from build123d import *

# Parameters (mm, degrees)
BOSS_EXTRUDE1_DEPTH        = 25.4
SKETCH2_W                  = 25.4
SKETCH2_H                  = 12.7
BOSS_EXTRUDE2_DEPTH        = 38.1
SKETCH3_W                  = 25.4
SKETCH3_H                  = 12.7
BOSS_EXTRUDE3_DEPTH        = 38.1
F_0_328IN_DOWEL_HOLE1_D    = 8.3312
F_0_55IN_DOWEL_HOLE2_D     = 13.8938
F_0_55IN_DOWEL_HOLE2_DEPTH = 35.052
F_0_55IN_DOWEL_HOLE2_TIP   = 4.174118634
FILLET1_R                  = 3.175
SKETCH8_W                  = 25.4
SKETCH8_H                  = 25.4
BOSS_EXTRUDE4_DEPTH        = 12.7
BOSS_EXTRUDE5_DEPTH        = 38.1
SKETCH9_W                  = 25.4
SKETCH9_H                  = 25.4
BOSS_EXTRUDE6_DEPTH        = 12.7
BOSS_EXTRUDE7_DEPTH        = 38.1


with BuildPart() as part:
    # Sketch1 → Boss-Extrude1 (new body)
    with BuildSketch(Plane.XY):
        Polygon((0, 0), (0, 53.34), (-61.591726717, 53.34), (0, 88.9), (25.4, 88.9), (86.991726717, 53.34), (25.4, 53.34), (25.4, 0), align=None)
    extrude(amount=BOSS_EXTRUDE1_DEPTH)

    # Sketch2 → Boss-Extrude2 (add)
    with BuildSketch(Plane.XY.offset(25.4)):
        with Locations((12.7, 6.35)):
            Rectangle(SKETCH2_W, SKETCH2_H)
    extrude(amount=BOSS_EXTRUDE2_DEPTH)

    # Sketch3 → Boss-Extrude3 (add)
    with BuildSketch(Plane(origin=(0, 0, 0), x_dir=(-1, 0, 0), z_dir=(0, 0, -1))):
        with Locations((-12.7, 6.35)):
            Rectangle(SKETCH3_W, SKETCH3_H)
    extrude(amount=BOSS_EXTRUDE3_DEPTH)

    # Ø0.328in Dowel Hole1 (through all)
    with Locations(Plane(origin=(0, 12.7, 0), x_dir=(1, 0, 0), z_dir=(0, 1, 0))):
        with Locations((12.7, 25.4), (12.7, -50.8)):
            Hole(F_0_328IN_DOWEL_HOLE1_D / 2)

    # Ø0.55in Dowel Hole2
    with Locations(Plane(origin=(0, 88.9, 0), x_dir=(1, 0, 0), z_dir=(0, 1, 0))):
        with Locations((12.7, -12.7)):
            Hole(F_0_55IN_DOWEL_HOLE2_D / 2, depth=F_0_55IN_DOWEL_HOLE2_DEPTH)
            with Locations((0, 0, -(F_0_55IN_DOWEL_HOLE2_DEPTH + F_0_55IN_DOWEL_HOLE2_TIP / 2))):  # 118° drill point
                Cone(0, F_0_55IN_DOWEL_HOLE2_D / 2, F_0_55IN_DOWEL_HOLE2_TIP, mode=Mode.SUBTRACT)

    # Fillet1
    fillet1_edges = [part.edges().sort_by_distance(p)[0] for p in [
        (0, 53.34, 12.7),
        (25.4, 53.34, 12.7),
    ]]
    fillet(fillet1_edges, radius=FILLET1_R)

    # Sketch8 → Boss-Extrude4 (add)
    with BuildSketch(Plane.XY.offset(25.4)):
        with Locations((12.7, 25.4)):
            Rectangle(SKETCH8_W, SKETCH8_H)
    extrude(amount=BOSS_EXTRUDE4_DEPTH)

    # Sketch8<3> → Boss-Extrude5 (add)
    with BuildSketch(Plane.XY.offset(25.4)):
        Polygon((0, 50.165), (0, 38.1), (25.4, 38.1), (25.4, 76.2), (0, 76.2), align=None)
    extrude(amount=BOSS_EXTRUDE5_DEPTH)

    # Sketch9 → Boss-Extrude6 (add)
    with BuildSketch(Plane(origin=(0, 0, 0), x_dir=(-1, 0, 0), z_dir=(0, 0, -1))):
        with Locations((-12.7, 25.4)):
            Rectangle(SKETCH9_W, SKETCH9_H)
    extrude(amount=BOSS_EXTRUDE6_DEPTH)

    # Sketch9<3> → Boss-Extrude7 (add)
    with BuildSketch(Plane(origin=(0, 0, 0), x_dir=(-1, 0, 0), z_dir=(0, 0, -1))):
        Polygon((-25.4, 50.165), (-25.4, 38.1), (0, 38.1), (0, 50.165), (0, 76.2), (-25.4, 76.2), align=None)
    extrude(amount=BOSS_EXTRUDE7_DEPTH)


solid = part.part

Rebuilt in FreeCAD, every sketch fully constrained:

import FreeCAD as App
import Part
import Sketcher
from FreeCAD import Vector
Q = App.Units.Quantity


def edges_at(feature, points):
    """Names of the edges that pass closest to the given points."""
    edges = feature.Shape.Edges
    near = lambda p: min(range(len(edges)), key=lambda i: edges[i].distToShape(Part.Vertex(*p))[0])
    return sorted({f"Edge{near(p) + 1}" for p in points})


def add_polygon(sketch, points):
    """Adds a closed chain of lines whose ends are joined by coincident constraints."""
    first, n = sketch.GeometryCount, len(points)
    for a, b in zip(points, points[1:] + points[:1]):
        sketch.addGeometry(Part.LineSegment(App.Vector(*a, 0), App.Vector(*b, 0)), False)
    for i in range(n):
        sketch.addConstraint(Sketcher.Constraint("Coincident", first + i, 2, first + (i + 1) % n, 1))

doc = App.newDocument("Part")
body = doc.addObject("PartDesign::Body", "Body")

# Sketch on XY plane
sketch1 = body.newObject("Sketcher::SketchObject", "Sketch")
sketch1.AttachmentSupport = (doc.getObject("XY_Plane"), [""])
sketch1.MapMode = "FlatFace"
add_polygon(sketch1, [(0, 53), (0, 0), (25, 0), (25, 53), (87, 53), (25, 89), (0, 89), (-62, 53)])  # lines 0-7
sketch1.addConstraint(Sketcher.Constraint("Vertical", 0))
sketch1.addConstraint(Sketcher.Constraint("Horizontal", 1))
sketch1.addConstraint(Sketcher.Constraint("Vertical", 2))
sketch1.addConstraint(Sketcher.Constraint("Horizontal", 3))
sketch1.addConstraint(Sketcher.Constraint("Horizontal", 5))
sketch1.addConstraint(Sketcher.Constraint("Horizontal", 7))
sketch1.addConstraint(Sketcher.Constraint("Coincident", 0, 2, -1, 1))
sketch1.addConstraint(Sketcher.Constraint("PointOnObject", 5, 2, -2))
sketch1.addConstraint(Sketcher.Constraint("Horizontal", 3, 2, 6, 2))
sketch1.addConstraint(Sketcher.Constraint("Vertical", 2, 2, 4, 2))
sketch1.addConstraint(Sketcher.Constraint("Equal", 3, 7))
sketch1.addConstraint(Sketcher.Constraint("DistanceX", 1, 1, 1, 2, Q("1 in")))
sketch1.addConstraint(Sketcher.Constraint("DistanceY", 0, 2, 0, 1, Q("2.1 in")))
sketch1.addConstraint(Sketcher.Constraint("Angle", 4, Q("150 deg")))
sketch1.addConstraint(Sketcher.Constraint("Distance", 4, Q("2.8 in")))
pad1 = body.newObject("PartDesign::Pad", "Pad")
pad1.Profile = sketch1
pad1.Length = Q("1 in")

# Sketch on XY plane
sketch2 = body.newObject("Sketcher::SketchObject", "Sketch001")
sketch2.AttachmentSupport = (doc.getObject("XY_Plane"), [""])
sketch2.MapMode = "FlatFace"
sketch2.AttachmentOffset = App.Placement(Vector(0, 0, 1 * 25.4), App.Rotation())
add_polygon(sketch2, [(0, 13), (0, 0), (25, 0), (25, 13)])  # lines 0-3
sketch2.addConstraint(Sketcher.Constraint("Vertical", 0))
sketch2.addConstraint(Sketcher.Constraint("Horizontal", 1))
sketch2.addConstraint(Sketcher.Constraint("Vertical", 2))
sketch2.addConstraint(Sketcher.Constraint("Horizontal", 3))
sketch2.addConstraint(Sketcher.Constraint("Coincident", 0, 2, -1, 1))
sketch2.addConstraint(Sketcher.Constraint("DistanceX", 1, 1, 1, 2, Q("1 in")))
sketch2.addConstraint(Sketcher.Constraint("DistanceY", 0, 2, 0, 1, Q("0.5 in")))
pad2 = body.newObject("PartDesign::Pad", "Pad001")
pad2.Profile = sketch2
pad2.Length = Q("1.5 in")

# Sketch on XY plane
sketch3 = body.newObject("Sketcher::SketchObject", "Sketch002")
sketch3.AttachmentSupport = (doc.getObject("XY_Plane"), [""])
sketch3.MapMode = "FlatFace"
add_polygon(sketch3, [(25, 13), (25, 0), (0, 0), (0, 13)])  # lines 0-3
sketch3.addConstraint(Sketcher.Constraint("Vertical", 0))
sketch3.addConstraint(Sketcher.Constraint("Horizontal", 1))
sketch3.addConstraint(Sketcher.Constraint("Vertical", 2))
sketch3.addConstraint(Sketcher.Constraint("Horizontal", 3))
sketch3.addConstraint(Sketcher.Constraint("Coincident", 1, 2, -1, 1))
sketch3.addConstraint(Sketcher.Constraint("DistanceX", 1, 2, 1, 1, Q("1 in")))
sketch3.addConstraint(Sketcher.Constraint("DistanceY", 0, 2, 0, 1, Q("0.5 in")))
pad3 = body.newObject("PartDesign::Pad", "Pad002")
pad3.Profile = sketch3
pad3.Length = Q("1.5 in")
pad3.Reversed = True

# Sketch on XZ plane
sketch4 = body.newObject("Sketcher::SketchObject", "Sketch003")
sketch4.AttachmentSupport = (doc.getObject("XZ_Plane"), [""])
sketch4.MapMode = "FlatFace"
sketch4.AttachmentOffset = App.Placement(Vector(0, 0, -0.5 * 25.4), App.Rotation())
sketch4.addGeometry(Part.Circle(Vector(12.7, -25.4, 0), Vector(0, 0, 1), 4.2), False)
sketch4.addGeometry(Part.Circle(Vector(12.7, 50.8, 0), Vector(0, 0, 1), 4.2), False)
sketch4.addConstraint(Sketcher.Constraint("Equal", 0, 1))
sketch4.addConstraint(Sketcher.Constraint("Vertical", 0, 3, 1, 3))
sketch4.addConstraint(Sketcher.Constraint("Diameter", 0, Q("0.328 in")))
sketch4.addConstraint(Sketcher.Constraint("DistanceY", 0, 3, -1, 1, Q("1 in")))
sketch4.addConstraint(Sketcher.Constraint("DistanceY", -1, 1, 1, 3, Q("2 in")))
sketch4.addConstraint(Sketcher.Constraint("DistanceX", -1, 1, 0, 3, Q("0.5 in")))
doc.recompute()
hole = body.newObject("PartDesign::Hole", "Hole")
hole.Profile = sketch4
hole.ThreadType = "None"
hole.Diameter = Q("0.328 in")
hole.DepthType = "ThroughAll"
hole.Reversed = True

# Sketch on XZ plane
sketch5 = body.newObject("Sketcher::SketchObject", "Sketch004")
sketch5.AttachmentSupport = (doc.getObject("XZ_Plane"), [""])
sketch5.MapMode = "FlatFace"
sketch5.AttachmentOffset = App.Placement(Vector(0, 0, -3.5 * 25.4), App.Rotation())
sketch5.addGeometry(Part.Circle(Vector(13, 13, 0), Vector(0, 0, 1), 7), False)
sketch5.addConstraint(Sketcher.Constraint("Diameter", 0, Q("0.547 in")))
sketch5.addConstraint(Sketcher.Constraint("DistanceX", -1, 1, 0, 3, Q("0.5 in")))
sketch5.addConstraint(Sketcher.Constraint("DistanceY", -1, 1, 0, 3, Q("0.5 in")))
doc.recompute()
hole2 = body.newObject("PartDesign::Hole", "Hole001")
hole2.Profile = sketch5
hole2.ThreadType = "None"
hole2.Diameter = Q("0.547 in")
hole2.DepthType = "Dimension"
hole2.Depth = Q("1.38 in")
hole2.DrillPoint = "Angled"
hole2.DrillPointAngle = 118
hole2.Reversed = True
doc.recompute()

fillet = body.newObject("PartDesign::Fillet", "Fillet")
fillet.Base = (hole2, edges_at(hole2, [(0, 53.34, 12.7), (25.4, 53.34, 12.7)]))
fillet.Radius = Q("0.125 in")

# Sketch on XY plane
sketch6 = body.newObject("Sketcher::SketchObject", "Sketch005")
sketch6.AttachmentSupport = (doc.getObject("XY_Plane"), [""])
sketch6.MapMode = "FlatFace"
sketch6.AttachmentOffset = App.Placement(Vector(0, 0, 1 * 25.4), App.Rotation())
add_polygon(sketch6, [(0, 38), (0, 13), (25, 13), (25, 38)])  # lines 0-3
sketch6.addConstraint(Sketcher.Constraint("Vertical", 0))
sketch6.addConstraint(Sketcher.Constraint("Horizontal", 1))
sketch6.addConstraint(Sketcher.Constraint("Vertical", 2))
sketch6.addConstraint(Sketcher.Constraint("Horizontal", 3))
sketch6.addConstraint(Sketcher.Constraint("PointOnObject", 0, 2, -2))
sketch6.addConstraint(Sketcher.Constraint("Equal", 3, 0))
sketch6.addConstraint(Sketcher.Constraint("DistanceX", 1, 1, 1, 2, Q("1 in")))
sketch6.addConstraint(Sketcher.Constraint("DistanceY", -1, 1, 0, 2, Q("0.5 in")))
pad4 = body.newObject("PartDesign::Pad", "Pad003")
pad4.Profile = sketch6
pad4.Length = Q("0.5 in")

# Sketch on XY plane
sketch7 = body.newObject("Sketcher::SketchObject", "Sketch006")
sketch7.AttachmentSupport = (doc.getObject("XY_Plane"), [""])
sketch7.MapMode = "FlatFace"
sketch7.AttachmentOffset = App.Placement(Vector(0, 0, 1 * 25.4), App.Rotation())
add_polygon(sketch7, [(0, 38), (25, 38), (25, 76), (0, 76)])  # lines 0-3
sketch7.addConstraint(Sketcher.Constraint("Horizontal", 0))
sketch7.addConstraint(Sketcher.Constraint("Vertical", 1))
sketch7.addConstraint(Sketcher.Constraint("Horizontal", 2))
sketch7.addConstraint(Sketcher.Constraint("Vertical", 3))
sketch7.addConstraint(Sketcher.Constraint("PointOnObject", 2, 2, -2))
sketch7.addConstraint(Sketcher.Constraint("DistanceX", 0, 1, 0, 2, Q("1 in")))
sketch7.addConstraint(Sketcher.Constraint("DistanceY", 1, 1, 1, 2, Q("1.5 in")))
sketch7.addConstraint(Sketcher.Constraint("DistanceY", -1, 1, 1, 2, Q("3 in")))
pad5 = body.newObject("PartDesign::Pad", "Pad004")
pad5.Profile = sketch7
pad5.Length = Q("1.5 in")

# Sketch on XY plane
sketch8 = body.newObject("Sketcher::SketchObject", "Sketch007")
sketch8.AttachmentSupport = (doc.getObject("XY_Plane"), [""])
sketch8.MapMode = "FlatFace"
add_polygon(sketch8, [(25, 38), (25, 13), (0, 13), (0, 38)])  # lines 0-3
sketch8.addConstraint(Sketcher.Constraint("Vertical", 0))
sketch8.addConstraint(Sketcher.Constraint("Horizontal", 1))
sketch8.addConstraint(Sketcher.Constraint("Vertical", 2))
sketch8.addConstraint(Sketcher.Constraint("Horizontal", 3))
sketch8.addConstraint(Sketcher.Constraint("PointOnObject", 1, 2, -2))
sketch8.addConstraint(Sketcher.Constraint("Equal", 3, 0))
sketch8.addConstraint(Sketcher.Constraint("DistanceX", 1, 2, 1, 1, Q("1 in")))
sketch8.addConstraint(Sketcher.Constraint("DistanceY", -1, 1, 0, 2, Q("0.5 in")))
pad6 = body.newObject("PartDesign::Pad", "Pad005")
pad6.Profile = sketch8
pad6.Length = Q("0.5 in")
pad6.Reversed = True

# Sketch on XY plane
sketch9 = body.newObject("Sketcher::SketchObject", "Sketch008")
sketch9.AttachmentSupport = (doc.getObject("XY_Plane"), [""])
sketch9.MapMode = "FlatFace"
add_polygon(sketch9, [(25, 38), (0, 38), (0, 76), (25, 76)])  # lines 0-3
sketch9.addConstraint(Sketcher.Constraint("Horizontal", 0))
sketch9.addConstraint(Sketcher.Constraint("Vertical", 1))
sketch9.addConstraint(Sketcher.Constraint("Horizontal", 2))
sketch9.addConstraint(Sketcher.Constraint("Vertical", 3))
sketch9.addConstraint(Sketcher.Constraint("PointOnObject", 0, 2, -2))
sketch9.addConstraint(Sketcher.Constraint("DistanceX", 0, 2, 0, 1, Q("1 in")))
sketch9.addConstraint(Sketcher.Constraint("DistanceY", 1, 1, 1, 2, Q("1.5 in")))
sketch9.addConstraint(Sketcher.Constraint("DistanceY", -1, 1, 1, 2, Q("3 in")))
pad7 = body.newObject("PartDesign::Pad", "Pad006")
pad7.Profile = sketch9
pad7.Length = Q("1.5 in")
pad7.Reversed = True

doc.recompute()
